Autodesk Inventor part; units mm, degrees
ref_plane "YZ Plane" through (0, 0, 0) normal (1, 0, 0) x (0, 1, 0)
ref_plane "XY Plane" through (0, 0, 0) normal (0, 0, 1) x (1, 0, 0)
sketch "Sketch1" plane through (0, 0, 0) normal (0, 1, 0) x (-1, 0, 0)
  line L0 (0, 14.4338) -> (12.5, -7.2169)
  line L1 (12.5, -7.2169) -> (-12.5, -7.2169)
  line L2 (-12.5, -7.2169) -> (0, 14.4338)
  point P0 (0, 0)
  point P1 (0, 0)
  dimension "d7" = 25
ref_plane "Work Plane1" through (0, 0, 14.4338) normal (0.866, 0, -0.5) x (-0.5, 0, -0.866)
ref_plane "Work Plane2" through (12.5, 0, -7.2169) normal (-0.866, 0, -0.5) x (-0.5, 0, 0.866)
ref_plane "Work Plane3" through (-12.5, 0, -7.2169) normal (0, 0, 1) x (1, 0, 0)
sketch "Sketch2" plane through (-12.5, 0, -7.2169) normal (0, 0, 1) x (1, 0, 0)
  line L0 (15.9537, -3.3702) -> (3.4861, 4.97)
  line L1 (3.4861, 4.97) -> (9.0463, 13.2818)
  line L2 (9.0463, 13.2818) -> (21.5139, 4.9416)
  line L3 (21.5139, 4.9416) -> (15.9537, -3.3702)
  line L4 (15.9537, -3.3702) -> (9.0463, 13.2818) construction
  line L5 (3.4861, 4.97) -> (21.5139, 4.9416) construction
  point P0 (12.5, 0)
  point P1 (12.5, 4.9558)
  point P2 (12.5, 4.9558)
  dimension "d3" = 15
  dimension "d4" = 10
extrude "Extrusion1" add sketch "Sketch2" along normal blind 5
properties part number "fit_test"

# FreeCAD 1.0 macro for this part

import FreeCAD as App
import Part
import Sketcher

V = App.Vector
Q = App.Units.Quantity

doc = App.newDocument("Part")
params = doc.addObject("Spreadsheet::Sheet", "Params")
for row, (alias, value) in enumerate([
    ("sketch1_length", "15 mm"),
    ("sketch1_length2", "10 mm"),
    ("pad1_length", "5 mm"),
], start=1):
    params.set(f"A{row}", alias)
    params.set(f"B{row}", "=" + value)
    params.setAlias(f"B{row}", alias)

body = doc.addObject("PartDesign::Body", "Body")

# Sketch on XY plane
sketch1 = doc.addObject("Sketcher::SketchObject", "Sketch")
body.addObject(sketch1)
sketch1.AttachmentSupport = (doc.XY_Plane, [""])
sketch1.MapMode = "FlatFace"
sketch1.AttachmentOffset = App.Placement(V(0, 0, -7.2169), App.Rotation())
sketch1.addGeometry([
    Part.LineSegment(V(-9, 5, 0), V(3, -3, 0)),
    Part.LineSegment(V(3, -3, 0), V(9, 5, 0)),
    Part.LineSegment(V(9, 5, 0), V(-3, 13, 0)),
    Part.LineSegment(V(-3, 13, 0), V(-9, 5, 0)),
], False)
sketch1.addConstraint([
    Sketcher.Constraint("Coincident", 0, 2, 1, 1),
    Sketcher.Constraint("Coincident", 1, 2, 2, 1),
    Sketcher.Constraint("Coincident", 2, 2, 3, 1),
    Sketcher.Constraint("Coincident", 3, 2, 0, 1),
    Sketcher.Constraint("Perpendicular", 0, 1),
    Sketcher.Constraint("Perpendicular", 1, 2),
    Sketcher.Constraint("Perpendicular", 2, 3),
    Sketcher.Constraint("Distance", 0, Q("15 mm")),
    Sketcher.Constraint("Distance", 1, Q("10 mm")),
    Sketcher.Constraint("Angle", 0, Q("-33.7805 deg")),
    Sketcher.Constraint("DistanceY", -1, 1, 3, 2, Q("4.97 mm")),
    Sketcher.Constraint("DistanceX", -1, 1, 1, 2, Q("9.014 mm")),
])
sketch1.setExpression("Constraints[7]", "Params.sketch1_length")
sketch1.setExpression("Constraints[8]", "Params.sketch1_length2")
pad1 = doc.addObject("PartDesign::Pad", "Pad")
body.addObject(pad1)
pad1.Profile = sketch1
pad1.setExpression("Length", "Params.pad1_length")

doc.recompute()
